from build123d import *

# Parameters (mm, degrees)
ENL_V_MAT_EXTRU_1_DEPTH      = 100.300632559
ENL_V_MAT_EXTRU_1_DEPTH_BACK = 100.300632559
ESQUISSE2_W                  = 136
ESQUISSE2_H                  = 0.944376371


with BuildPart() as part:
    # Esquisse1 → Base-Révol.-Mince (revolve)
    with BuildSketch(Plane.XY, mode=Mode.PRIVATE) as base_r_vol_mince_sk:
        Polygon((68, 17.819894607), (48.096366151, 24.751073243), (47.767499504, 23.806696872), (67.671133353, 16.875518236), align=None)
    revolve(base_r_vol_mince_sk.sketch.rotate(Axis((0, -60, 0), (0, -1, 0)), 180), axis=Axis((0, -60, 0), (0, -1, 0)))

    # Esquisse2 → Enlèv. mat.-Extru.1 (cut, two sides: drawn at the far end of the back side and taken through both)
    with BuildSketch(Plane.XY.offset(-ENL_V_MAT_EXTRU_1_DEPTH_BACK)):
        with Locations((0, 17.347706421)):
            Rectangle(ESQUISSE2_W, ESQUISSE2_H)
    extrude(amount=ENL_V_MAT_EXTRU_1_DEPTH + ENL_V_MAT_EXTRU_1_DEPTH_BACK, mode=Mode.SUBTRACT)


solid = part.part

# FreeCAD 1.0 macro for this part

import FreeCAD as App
import Part
import Sketcher
Q = App.Units.Quantity

doc = App.newDocument("Part")
body = doc.addObject("PartDesign::Body", "Body")

# Sketch on XY plane
sketch1 = doc.addObject("Sketcher::SketchObject", "Sketch")
body.addObject(sketch1)
sketch1.AttachmentSupport = (doc.XY_Plane, [""])
sketch1.MapMode = "FlatFace"
sketch1.addGeometry(Part.LineSegment(App.Vector(68, 17.8, 0), App.Vector(48.1, 24.8, 0)), False)
sketch1.addGeometry(Part.LineSegment(App.Vector(48.1, 24.8, 0), App.Vector(47.8, 23.8, 0)), False)
sketch1.addGeometry(Part.LineSegment(App.Vector(47.8, 23.8, 0), App.Vector(67.7, 16.9, 0)), False)
sketch1.addGeometry(Part.LineSegment(App.Vector(67.7, 16.9, 0), App.Vector(68, 17.8, 0)), False)
sketch1.addConstraint(Sketcher.Constraint("Coincident", 0, 2, 1, 1))
sketch1.addConstraint(Sketcher.Constraint("Coincident", 1, 2, 2, 1))
sketch1.addConstraint(Sketcher.Constraint("Coincident", 2, 2, 3, 1))
sketch1.addConstraint(Sketcher.Constraint("Coincident", 3, 2, 0, 1))
sketch1.addConstraint(Sketcher.Constraint("Perpendicular", 0, 1))
sketch1.addConstraint(Sketcher.Constraint("Perpendicular", 1, 2))
sketch1.addConstraint(Sketcher.Constraint("Perpendicular", 2, 3))
sketch1.addConstraint(Sketcher.Constraint("Distance", 1, 1.0))
sketch1.addConstraint(Sketcher.Constraint("DistanceX", -1, 1, 3, 2, 68.0))
sketch1.addConstraint(Sketcher.Constraint("Angle", 0, Q("160.8 deg")))
sketch1.addConstraint(Sketcher.Constraint("DistanceX", -1, 1, 1, 2, 47.7675))
sketch1.addConstraint(Sketcher.Constraint("DistanceY", -1, 1, 2, 2, 16.875518))
revolution = doc.addObject("PartDesign::Revolution", "Revolution")
body.addObject(revolution)
revolution.Profile = sketch1
revolution.ReferenceAxis = (sketch1, ["V_Axis"])
revolution.Angle = 360

# Sketch on XY plane
sketch2 = doc.addObject("Sketcher::SketchObject", "Sketch001")
body.addObject(sketch2)
sketch2.AttachmentSupport = (doc.XY_Plane, [""])
sketch2.MapMode = "FlatFace"
sketch2.addGeometry(Part.LineSegment(App.Vector(-68, 17.8, 0), App.Vector(-68, 16.9, 0)), False)
sketch2.addGeometry(Part.LineSegment(App.Vector(-68, 16.9, 0), App.Vector(68, 16.9, 0)), False)
sketch2.addGeometry(Part.LineSegment(App.Vector(68, 16.9, 0), App.Vector(68, 17.8, 0)), False)
sketch2.addGeometry(Part.LineSegment(App.Vector(68, 17.8, 0), App.Vector(-68, 17.8, 0)), False)
sketch2.addConstraint(Sketcher.Constraint("Coincident", 0, 2, 1, 1))
sketch2.addConstraint(Sketcher.Constraint("Coincident", 1, 2, 2, 1))
sketch2.addConstraint(Sketcher.Constraint("Coincident", 2, 2, 3, 1))
sketch2.addConstraint(Sketcher.Constraint("Coincident", 3, 2, 0, 1))
sketch2.addConstraint(Sketcher.Constraint("Vertical", 0))
sketch2.addConstraint(Sketcher.Constraint("Horizontal", 1))
sketch2.addConstraint(Sketcher.Constraint("Vertical", 2))
sketch2.addConstraint(Sketcher.Constraint("Horizontal", 3))
sketch2.addConstraint(Sketcher.Constraint("DistanceX", 1, 1, 1, 2, 136.0))
sketch2.addConstraint(Sketcher.Constraint("DistanceX", 0, 2, -1, 1, 68.0))
sketch2.addConstraint(Sketcher.Constraint("DistanceY", 0, 2, 0, 1, 0.944376))
sketch2.addConstraint(Sketcher.Constraint("DistanceY", -1, 1, 0, 2, 16.875518))
pocket1 = doc.addObject("PartDesign::Pocket", "Pocket")
body.addObject(pocket1)
pocket1.Profile = sketch2
pocket1.Type = "ThroughAll"
pocket1.Midplane = True

doc.recompute()
